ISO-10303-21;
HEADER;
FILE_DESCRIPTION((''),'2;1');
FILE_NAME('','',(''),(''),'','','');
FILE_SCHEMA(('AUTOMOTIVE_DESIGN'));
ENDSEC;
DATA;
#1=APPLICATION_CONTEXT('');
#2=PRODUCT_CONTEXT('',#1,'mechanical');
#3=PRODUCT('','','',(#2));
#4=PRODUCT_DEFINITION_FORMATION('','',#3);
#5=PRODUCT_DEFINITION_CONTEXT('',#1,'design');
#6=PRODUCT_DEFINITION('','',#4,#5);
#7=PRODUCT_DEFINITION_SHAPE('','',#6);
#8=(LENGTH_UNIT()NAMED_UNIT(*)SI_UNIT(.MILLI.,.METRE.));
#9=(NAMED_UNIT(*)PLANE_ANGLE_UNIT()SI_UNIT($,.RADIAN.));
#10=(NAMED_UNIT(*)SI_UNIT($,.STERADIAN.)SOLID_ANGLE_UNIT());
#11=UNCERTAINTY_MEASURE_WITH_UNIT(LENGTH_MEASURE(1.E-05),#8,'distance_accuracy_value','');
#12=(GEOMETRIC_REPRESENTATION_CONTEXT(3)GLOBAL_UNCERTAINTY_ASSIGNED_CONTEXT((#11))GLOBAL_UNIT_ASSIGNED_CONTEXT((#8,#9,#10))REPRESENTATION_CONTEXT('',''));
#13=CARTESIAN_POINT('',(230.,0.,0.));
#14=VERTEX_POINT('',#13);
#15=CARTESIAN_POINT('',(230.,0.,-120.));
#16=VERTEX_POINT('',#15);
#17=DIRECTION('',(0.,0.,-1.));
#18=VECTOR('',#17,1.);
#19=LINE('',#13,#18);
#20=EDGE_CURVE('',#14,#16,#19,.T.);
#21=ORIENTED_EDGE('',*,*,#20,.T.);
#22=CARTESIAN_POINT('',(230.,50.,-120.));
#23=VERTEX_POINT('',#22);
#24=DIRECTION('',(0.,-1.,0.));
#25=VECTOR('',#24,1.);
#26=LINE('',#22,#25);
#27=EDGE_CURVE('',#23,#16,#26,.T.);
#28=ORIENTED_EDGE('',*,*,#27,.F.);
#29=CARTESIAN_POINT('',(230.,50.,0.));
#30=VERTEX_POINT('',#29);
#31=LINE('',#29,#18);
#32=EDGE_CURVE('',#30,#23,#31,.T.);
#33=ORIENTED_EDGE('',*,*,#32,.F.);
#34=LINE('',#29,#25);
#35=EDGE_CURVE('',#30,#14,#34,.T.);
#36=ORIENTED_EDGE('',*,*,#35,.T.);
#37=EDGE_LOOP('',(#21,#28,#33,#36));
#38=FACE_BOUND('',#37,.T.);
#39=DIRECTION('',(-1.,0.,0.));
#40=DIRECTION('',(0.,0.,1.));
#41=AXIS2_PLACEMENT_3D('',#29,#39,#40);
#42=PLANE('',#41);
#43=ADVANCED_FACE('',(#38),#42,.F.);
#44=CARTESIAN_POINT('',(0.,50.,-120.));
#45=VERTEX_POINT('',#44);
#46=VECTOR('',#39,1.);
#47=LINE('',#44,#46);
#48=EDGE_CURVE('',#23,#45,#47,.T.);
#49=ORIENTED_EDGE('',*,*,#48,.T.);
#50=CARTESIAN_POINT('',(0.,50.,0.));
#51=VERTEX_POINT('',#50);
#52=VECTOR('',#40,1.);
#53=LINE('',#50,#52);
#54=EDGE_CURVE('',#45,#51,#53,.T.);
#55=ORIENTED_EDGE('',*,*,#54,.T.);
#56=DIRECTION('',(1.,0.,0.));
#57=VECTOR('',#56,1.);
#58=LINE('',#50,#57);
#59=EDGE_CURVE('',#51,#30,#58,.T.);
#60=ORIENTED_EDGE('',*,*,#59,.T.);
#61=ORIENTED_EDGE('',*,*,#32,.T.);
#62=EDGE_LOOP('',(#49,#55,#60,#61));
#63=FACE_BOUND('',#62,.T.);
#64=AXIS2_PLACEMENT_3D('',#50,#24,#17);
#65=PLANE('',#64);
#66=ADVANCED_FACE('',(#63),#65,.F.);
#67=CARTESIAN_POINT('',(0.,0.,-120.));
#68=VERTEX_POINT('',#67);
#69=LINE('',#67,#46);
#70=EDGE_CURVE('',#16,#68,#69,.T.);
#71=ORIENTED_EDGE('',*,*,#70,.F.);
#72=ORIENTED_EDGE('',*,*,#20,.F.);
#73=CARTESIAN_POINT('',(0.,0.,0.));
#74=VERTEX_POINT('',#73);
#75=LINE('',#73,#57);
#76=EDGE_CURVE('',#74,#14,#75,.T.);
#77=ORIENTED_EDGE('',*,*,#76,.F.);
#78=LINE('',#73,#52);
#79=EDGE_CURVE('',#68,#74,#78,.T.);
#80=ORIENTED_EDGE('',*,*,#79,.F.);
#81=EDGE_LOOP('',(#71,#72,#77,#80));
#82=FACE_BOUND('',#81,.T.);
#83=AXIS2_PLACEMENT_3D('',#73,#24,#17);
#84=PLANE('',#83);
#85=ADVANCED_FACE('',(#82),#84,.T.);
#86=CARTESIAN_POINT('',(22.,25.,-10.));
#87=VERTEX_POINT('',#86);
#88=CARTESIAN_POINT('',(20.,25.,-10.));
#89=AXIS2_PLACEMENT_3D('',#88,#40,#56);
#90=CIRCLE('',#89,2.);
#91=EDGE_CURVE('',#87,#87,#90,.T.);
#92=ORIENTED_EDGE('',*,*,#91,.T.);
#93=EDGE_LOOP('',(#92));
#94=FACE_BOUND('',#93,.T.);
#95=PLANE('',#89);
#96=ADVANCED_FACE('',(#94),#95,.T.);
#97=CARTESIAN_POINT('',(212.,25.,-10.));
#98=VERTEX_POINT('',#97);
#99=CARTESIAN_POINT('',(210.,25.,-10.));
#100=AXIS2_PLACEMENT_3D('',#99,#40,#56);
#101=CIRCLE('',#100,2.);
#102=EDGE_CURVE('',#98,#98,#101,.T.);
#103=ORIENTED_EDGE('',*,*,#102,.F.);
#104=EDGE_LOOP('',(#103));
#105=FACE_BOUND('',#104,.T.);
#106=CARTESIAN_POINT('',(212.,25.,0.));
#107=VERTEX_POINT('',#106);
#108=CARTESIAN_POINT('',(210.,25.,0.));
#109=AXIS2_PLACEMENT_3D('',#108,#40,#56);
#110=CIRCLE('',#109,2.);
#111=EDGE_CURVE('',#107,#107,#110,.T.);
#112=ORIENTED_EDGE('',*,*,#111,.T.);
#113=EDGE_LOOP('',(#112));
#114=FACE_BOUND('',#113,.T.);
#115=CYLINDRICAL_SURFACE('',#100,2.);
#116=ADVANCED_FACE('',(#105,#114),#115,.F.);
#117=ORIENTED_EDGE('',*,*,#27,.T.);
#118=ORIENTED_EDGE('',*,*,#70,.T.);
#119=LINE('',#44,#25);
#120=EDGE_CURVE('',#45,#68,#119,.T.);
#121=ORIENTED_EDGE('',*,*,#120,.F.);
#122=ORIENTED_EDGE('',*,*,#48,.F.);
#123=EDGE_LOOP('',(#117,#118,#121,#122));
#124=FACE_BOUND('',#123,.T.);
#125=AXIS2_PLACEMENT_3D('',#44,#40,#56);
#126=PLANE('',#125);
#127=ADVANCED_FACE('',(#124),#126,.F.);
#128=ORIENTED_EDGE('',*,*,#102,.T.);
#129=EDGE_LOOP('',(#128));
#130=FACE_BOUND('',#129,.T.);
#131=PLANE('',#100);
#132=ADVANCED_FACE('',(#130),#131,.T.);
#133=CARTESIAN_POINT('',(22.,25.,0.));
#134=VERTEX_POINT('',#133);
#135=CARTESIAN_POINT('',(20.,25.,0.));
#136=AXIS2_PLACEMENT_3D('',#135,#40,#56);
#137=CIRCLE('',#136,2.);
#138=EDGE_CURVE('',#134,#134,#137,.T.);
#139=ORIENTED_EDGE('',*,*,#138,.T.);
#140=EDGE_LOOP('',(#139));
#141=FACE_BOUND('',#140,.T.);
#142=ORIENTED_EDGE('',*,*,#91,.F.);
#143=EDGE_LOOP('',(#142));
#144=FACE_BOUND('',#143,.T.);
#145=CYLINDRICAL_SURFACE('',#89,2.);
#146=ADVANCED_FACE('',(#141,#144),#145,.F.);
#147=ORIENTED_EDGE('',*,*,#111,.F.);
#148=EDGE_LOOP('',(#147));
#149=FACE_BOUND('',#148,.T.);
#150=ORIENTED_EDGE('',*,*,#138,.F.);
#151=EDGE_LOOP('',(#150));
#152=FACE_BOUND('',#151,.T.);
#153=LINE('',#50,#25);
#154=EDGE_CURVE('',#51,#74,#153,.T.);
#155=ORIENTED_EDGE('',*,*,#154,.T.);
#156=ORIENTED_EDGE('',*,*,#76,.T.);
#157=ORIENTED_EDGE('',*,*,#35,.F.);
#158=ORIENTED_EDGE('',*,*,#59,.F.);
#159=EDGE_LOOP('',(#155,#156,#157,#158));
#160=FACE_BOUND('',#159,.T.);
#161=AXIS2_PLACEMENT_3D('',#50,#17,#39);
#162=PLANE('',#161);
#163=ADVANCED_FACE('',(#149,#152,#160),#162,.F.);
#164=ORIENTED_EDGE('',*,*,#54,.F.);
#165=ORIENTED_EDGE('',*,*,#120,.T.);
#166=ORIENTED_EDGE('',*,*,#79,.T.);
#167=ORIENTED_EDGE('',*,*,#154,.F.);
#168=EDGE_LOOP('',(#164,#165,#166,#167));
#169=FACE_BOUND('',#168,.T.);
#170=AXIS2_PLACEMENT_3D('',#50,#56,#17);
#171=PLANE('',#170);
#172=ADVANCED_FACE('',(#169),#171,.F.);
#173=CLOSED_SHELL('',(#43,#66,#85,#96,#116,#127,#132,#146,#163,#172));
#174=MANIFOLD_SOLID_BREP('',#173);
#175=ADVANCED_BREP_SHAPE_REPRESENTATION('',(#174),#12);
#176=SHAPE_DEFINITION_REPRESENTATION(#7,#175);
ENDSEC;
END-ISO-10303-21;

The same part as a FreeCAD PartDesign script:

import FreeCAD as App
import Part
import Sketcher
Q = App.Units.Quantity


def add_polygon(sketch, points):
    """Adds a closed chain of lines whose ends are joined by coincident constraints."""
    first, n = sketch.GeometryCount, len(points)
    for a, b in zip(points, points[1:] + points[:1]):
        sketch.addGeometry(Part.LineSegment(App.Vector(*a, 0), App.Vector(*b, 0)), False)
    for i in range(n):
        sketch.addConstraint(Sketcher.Constraint("Coincident", first + i, 2, first + (i + 1) % n, 1))

doc = App.newDocument("Part")
body = doc.addObject("PartDesign::Body", "Body")

# Sketch on XZ plane
sketch1 = body.newObject("Sketcher::SketchObject", "Sketch")
sketch1.AttachmentSupport = (doc.getObject("XZ_Plane"), [""])
sketch1.MapMode = "FlatFace"
add_polygon(sketch1, [(0, -120), (0, 0), (230, 0), (230, -120)])  # lines 0-3
sketch1.addConstraint([
    Sketcher.Constraint("Vertical", 0),
    Sketcher.Constraint("Horizontal", 1),
    Sketcher.Constraint("Vertical", 2),
    Sketcher.Constraint("Horizontal", 3),
    Sketcher.Constraint("Coincident", 0, 2, -1, 1),
    Sketcher.Constraint("DistanceX", 1, 1, 1, 2, Q("230 mm")),
    Sketcher.Constraint("DistanceY", 0, 1, 0, 2, Q("120 mm")),
])
pad1 = body.newObject("PartDesign::Pad", "Pad")
pad1.Profile = sketch1
pad1.Length = 50
pad1.Reversed = True

# Sketch on XY plane
sketch2 = body.newObject("Sketcher::SketchObject", "Sketch001")
sketch2.AttachmentSupport = (doc.getObject("XY_Plane"), [""])
sketch2.MapMode = "FlatFace"
sketch2.addGeometry([
    Part.Circle(App.Vector(20, 25, 0), App.Vector(0, 0, 1), 2),
    Part.Circle(App.Vector(210, 25, 0), App.Vector(0, 0, 1), 2),
], False)
sketch2.addConstraint([
    Sketcher.Constraint("Equal", 0, 1),
    Sketcher.Constraint("Horizontal", 0, 3, 1, 3),
    Sketcher.Constraint("Diameter", 0, Q("4 mm")),
    Sketcher.Constraint("DistanceX", -1, 1, 0, 3, Q("20 mm")),
    Sketcher.Constraint("DistanceY", -1, 1, 0, 3, Q("25 mm")),
    Sketcher.Constraint("DistanceX", -1, 1, 1, 3, Q("210 mm")),
])
pocket1 = body.newObject("PartDesign::Pocket", "Pocket")
pocket1.Profile = sketch2
pocket1.Length = 10

doc.recompute()
